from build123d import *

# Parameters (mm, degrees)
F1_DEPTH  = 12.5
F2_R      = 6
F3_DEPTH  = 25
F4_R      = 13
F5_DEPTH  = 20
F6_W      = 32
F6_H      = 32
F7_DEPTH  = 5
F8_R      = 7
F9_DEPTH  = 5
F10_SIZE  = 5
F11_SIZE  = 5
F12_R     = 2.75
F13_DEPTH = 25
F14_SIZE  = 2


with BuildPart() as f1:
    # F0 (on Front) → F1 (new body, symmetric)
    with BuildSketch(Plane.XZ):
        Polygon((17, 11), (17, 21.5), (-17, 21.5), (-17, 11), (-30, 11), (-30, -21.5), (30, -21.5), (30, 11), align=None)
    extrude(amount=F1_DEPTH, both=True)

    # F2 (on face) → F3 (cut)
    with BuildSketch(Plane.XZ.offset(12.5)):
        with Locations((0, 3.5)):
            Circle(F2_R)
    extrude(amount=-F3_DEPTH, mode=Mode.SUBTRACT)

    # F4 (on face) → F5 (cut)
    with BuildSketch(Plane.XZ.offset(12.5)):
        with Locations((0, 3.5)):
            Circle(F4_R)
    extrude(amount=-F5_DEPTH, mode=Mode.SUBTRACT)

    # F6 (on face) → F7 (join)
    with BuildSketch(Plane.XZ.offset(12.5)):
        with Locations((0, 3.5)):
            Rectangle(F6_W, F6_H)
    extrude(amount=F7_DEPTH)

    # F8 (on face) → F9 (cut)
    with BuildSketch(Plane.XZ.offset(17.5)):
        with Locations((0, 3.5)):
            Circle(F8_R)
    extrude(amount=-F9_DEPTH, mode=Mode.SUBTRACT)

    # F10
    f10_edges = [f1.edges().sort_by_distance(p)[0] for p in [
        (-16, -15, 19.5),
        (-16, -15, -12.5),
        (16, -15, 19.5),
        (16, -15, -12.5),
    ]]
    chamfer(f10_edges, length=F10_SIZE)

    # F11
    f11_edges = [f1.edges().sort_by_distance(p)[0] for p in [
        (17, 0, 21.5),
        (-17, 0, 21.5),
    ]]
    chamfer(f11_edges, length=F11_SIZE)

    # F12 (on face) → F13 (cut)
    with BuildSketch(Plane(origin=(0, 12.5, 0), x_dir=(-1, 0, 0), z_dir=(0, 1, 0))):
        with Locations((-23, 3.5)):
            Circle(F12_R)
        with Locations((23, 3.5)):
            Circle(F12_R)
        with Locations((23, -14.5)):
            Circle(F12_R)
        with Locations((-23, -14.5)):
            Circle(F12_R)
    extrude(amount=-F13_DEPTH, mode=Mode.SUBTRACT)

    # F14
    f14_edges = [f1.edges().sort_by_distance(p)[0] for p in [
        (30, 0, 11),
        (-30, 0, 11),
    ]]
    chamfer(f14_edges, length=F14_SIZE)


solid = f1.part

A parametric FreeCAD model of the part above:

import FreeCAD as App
import Part
import Sketcher
from FreeCAD import Vector
Q = App.Units.Quantity


def edges_at(feature, points):
    """Names of the edges that pass closest to the given points."""
    edges = feature.Shape.Edges
    near = lambda p: min(range(len(edges)), key=lambda i: edges[i].distToShape(Part.Vertex(*p))[0])
    return sorted({f"Edge{near(p) + 1}" for p in points})


def add_polygon(sketch, points):
    """Adds a closed chain of lines whose ends are joined by coincident constraints."""
    first, n = sketch.GeometryCount, len(points)
    for a, b in zip(points, points[1:] + points[:1]):
        sketch.addGeometry(Part.LineSegment(App.Vector(*a, 0), App.Vector(*b, 0)), False)
    for i in range(n):
        sketch.addConstraint(Sketcher.Constraint("Coincident", first + i, 2, first + (i + 1) % n, 1))

doc = App.newDocument("Part")
body = doc.addObject("PartDesign::Body", "Body")

# Sketch on XZ plane
sketch1 = body.newObject("Sketcher::SketchObject", "Sketch")
sketch1.AttachmentSupport = (doc.getObject("XZ_Plane"), [""])
sketch1.MapMode = "FlatFace"
add_polygon(sketch1, [(17, 11), (17, 22), (-17, 22), (-17, 11), (-30, 11), (-30, -22), (30, -22), (30, 11)])  # lines 0-7
sketch1.addConstraint([
    Sketcher.Constraint("Vertical", 0),
    Sketcher.Constraint("Horizontal", 1),
    Sketcher.Constraint("Vertical", 2),
    Sketcher.Constraint("Horizontal", 3),
    Sketcher.Constraint("Vertical", 4),
    Sketcher.Constraint("Horizontal", 5),
    Sketcher.Constraint("Vertical", 6),
    Sketcher.Constraint("Horizontal", 7),
    Sketcher.Constraint("Symmetric", 3, 2, 6, 2, -2),
    Sketcher.Constraint("Equal", 3, 7),
    Sketcher.Constraint("DistanceX", 1, 2, 1, 1, Q("34 mm")),
    Sketcher.Constraint("DistanceX", 3, 2, 3, 1, Q("13 mm")),
    Sketcher.Constraint("DistanceY", 0, 1, 0, 2, Q("10.5 mm")),
    Sketcher.Constraint("DistanceY", 4, 2, 4, 1, Q("32.5 mm")),
    Sketcher.Constraint("DistanceY", -1, 1, 2, 2, Q("11 mm")),
])
pad1 = body.newObject("PartDesign::Pad", "Pad")
pad1.Profile = sketch1
pad1.Length = 25
pad1.Midplane = True

# Sketch on XZ plane
sketch2 = body.newObject("Sketcher::SketchObject", "Sketch001")
sketch2.AttachmentSupport = (doc.getObject("XZ_Plane"), [""])
sketch2.MapMode = "FlatFace"
sketch2.AttachmentOffset = App.Placement(Vector(0, 0, 12.5), App.Rotation())
sketch2.addGeometry(Part.Circle(Vector(0, 4, 0), Vector(0, 0, 1), 6), False)
sketch2.addConstraint([
    Sketcher.Constraint("PointOnObject", 0, 3, -2),
    Sketcher.Constraint("Diameter", 0, Q("12 mm")),
    Sketcher.Constraint("DistanceY", -1, 1, 0, 3, Q("3.5 mm")),
])
pocket1 = body.newObject("PartDesign::Pocket", "Pocket")
pocket1.Profile = sketch2
pocket1.Length = 25

# Sketch on XZ plane
sketch3 = body.newObject("Sketcher::SketchObject", "Sketch002")
sketch3.AttachmentSupport = (doc.getObject("XZ_Plane"), [""])
sketch3.MapMode = "FlatFace"
sketch3.AttachmentOffset = App.Placement(Vector(0, 0, 12.5), App.Rotation())
sketch3.addGeometry(Part.Circle(Vector(0, 4, 0), Vector(0, 0, 1), 13), False)
sketch3.addConstraint([
    Sketcher.Constraint("PointOnObject", 0, 3, -2),
    Sketcher.Constraint("Diameter", 0, Q("26 mm")),
    Sketcher.Constraint("DistanceY", -1, 1, 0, 3, Q("3.5 mm")),
])
pocket2 = body.newObject("PartDesign::Pocket", "Pocket001")
pocket2.Profile = sketch3
pocket2.Length = 20

# Sketch on XZ plane
sketch4 = body.newObject("Sketcher::SketchObject", "Sketch003")
sketch4.AttachmentSupport = (doc.getObject("XZ_Plane"), [""])
sketch4.MapMode = "FlatFace"
sketch4.AttachmentOffset = App.Placement(Vector(0, 0, 12.5), App.Rotation())
add_polygon(sketch4, [(-16, 20), (-16, -12), (16, -12), (16, 20)])  # lines 0-3
sketch4.addConstraint([
    Sketcher.Constraint("Vertical", 0),
    Sketcher.Constraint("Horizontal", 1),
    Sketcher.Constraint("Vertical", 2),
    Sketcher.Constraint("Horizontal", 3),
    Sketcher.Constraint("Equal", 3, 0),
    Sketcher.Constraint("DistanceX", 1, 1, 1, 2, Q("32 mm")),
    Sketcher.Constraint("DistanceX", 0, 2, -1, 1, Q("16 mm")),
    Sketcher.Constraint("DistanceY", 0, 2, -1, 1, Q("12.5 mm")),
])
pad2 = body.newObject("PartDesign::Pad", "Pad001")
pad2.Profile = sketch4
pad2.Length = 5

# Sketch on XZ plane
sketch5 = body.newObject("Sketcher::SketchObject", "Sketch004")
sketch5.AttachmentSupport = (doc.getObject("XZ_Plane"), [""])
sketch5.MapMode = "FlatFace"
sketch5.AttachmentOffset = App.Placement(Vector(0, 0, 17.5), App.Rotation())
sketch5.addGeometry(Part.Circle(Vector(0, 4, 0), Vector(0, 0, 1), 7), False)
sketch5.addConstraint([
    Sketcher.Constraint("PointOnObject", 0, 3, -2),
    Sketcher.Constraint("Diameter", 0, Q("14 mm")),
    Sketcher.Constraint("DistanceY", -1, 1, 0, 3, Q("3.5 mm")),
])
pocket3 = body.newObject("PartDesign::Pocket", "Pocket002")
pocket3.Profile = sketch5
pocket3.Length = 5
doc.recompute()

chamfer = body.newObject("PartDesign::Chamfer", "Chamfer")
chamfer.Base = (pocket3, edges_at(pocket3, [
    (-16, -15, 19.5),
    (-16, -15, -12.5),
    (16, -15, 19.5),
    (16, -15, -12.5),
]))
chamfer.Size = 5
doc.recompute()

chamfer2 = body.newObject("PartDesign::Chamfer", "Chamfer001")
chamfer2.Base = (chamfer, edges_at(chamfer, [(17, 0, 21.5), (-17, 0, 21.5)]))
chamfer2.Size = 5

# Sketch on XZ plane
sketch6 = body.newObject("Sketcher::SketchObject", "Sketch005")
sketch6.AttachmentSupport = (doc.getObject("XZ_Plane"), [""])
sketch6.MapMode = "FlatFace"
sketch6.AttachmentOffset = App.Placement(Vector(0, 0, -12.5), App.Rotation())
sketch6.addGeometry([
    Part.Circle(Vector(23, 3.5, 0), Vector(0, 0, 1), 2.8),
    Part.Circle(Vector(-23, 3.5, 0), Vector(0, 0, 1), 2.8),
    Part.Circle(Vector(-23, -14.5, 0), Vector(0, 0, 1), 2.8),
    Part.Circle(Vector(23, -14.5, 0), Vector(0, 0, 1), 2.8),
], False)
sketch6.addConstraint([
    Sketcher.Constraint("Equal", 0, 1),
    Sketcher.Constraint("Equal", 1, 2),
    Sketcher.Constraint("Equal", 2, 3),
    Sketcher.Constraint("Symmetric", 0, 3, 1, 3, -2),
    Sketcher.Constraint("Symmetric", 2, 3, 3, 3, -2),
    Sketcher.Constraint("Vertical", 1, 3, 2, 3),
    Sketcher.Constraint("Diameter", 0, Q("5.5 mm")),
    Sketcher.Constraint("DistanceX", -1, 1, 0, 3, Q("23 mm")),
    Sketcher.Constraint("DistanceY", 2, 3, 1, 3, Q("18 mm")),
    Sketcher.Constraint("DistanceY", -1, 1, 0, 3, Q("3.5 mm")),
])
pocket4 = body.newObject("PartDesign::Pocket", "Pocket003")
pocket4.Profile = sketch6
pocket4.Length = 25
pocket4.Reversed = True
doc.recompute()

chamfer3 = body.newObject("PartDesign::Chamfer", "Chamfer002")
chamfer3.Base = (pocket4, edges_at(pocket4, [(30, 0, 11), (-30, 0, 11)]))
chamfer3.Size = 2

doc.recompute()
